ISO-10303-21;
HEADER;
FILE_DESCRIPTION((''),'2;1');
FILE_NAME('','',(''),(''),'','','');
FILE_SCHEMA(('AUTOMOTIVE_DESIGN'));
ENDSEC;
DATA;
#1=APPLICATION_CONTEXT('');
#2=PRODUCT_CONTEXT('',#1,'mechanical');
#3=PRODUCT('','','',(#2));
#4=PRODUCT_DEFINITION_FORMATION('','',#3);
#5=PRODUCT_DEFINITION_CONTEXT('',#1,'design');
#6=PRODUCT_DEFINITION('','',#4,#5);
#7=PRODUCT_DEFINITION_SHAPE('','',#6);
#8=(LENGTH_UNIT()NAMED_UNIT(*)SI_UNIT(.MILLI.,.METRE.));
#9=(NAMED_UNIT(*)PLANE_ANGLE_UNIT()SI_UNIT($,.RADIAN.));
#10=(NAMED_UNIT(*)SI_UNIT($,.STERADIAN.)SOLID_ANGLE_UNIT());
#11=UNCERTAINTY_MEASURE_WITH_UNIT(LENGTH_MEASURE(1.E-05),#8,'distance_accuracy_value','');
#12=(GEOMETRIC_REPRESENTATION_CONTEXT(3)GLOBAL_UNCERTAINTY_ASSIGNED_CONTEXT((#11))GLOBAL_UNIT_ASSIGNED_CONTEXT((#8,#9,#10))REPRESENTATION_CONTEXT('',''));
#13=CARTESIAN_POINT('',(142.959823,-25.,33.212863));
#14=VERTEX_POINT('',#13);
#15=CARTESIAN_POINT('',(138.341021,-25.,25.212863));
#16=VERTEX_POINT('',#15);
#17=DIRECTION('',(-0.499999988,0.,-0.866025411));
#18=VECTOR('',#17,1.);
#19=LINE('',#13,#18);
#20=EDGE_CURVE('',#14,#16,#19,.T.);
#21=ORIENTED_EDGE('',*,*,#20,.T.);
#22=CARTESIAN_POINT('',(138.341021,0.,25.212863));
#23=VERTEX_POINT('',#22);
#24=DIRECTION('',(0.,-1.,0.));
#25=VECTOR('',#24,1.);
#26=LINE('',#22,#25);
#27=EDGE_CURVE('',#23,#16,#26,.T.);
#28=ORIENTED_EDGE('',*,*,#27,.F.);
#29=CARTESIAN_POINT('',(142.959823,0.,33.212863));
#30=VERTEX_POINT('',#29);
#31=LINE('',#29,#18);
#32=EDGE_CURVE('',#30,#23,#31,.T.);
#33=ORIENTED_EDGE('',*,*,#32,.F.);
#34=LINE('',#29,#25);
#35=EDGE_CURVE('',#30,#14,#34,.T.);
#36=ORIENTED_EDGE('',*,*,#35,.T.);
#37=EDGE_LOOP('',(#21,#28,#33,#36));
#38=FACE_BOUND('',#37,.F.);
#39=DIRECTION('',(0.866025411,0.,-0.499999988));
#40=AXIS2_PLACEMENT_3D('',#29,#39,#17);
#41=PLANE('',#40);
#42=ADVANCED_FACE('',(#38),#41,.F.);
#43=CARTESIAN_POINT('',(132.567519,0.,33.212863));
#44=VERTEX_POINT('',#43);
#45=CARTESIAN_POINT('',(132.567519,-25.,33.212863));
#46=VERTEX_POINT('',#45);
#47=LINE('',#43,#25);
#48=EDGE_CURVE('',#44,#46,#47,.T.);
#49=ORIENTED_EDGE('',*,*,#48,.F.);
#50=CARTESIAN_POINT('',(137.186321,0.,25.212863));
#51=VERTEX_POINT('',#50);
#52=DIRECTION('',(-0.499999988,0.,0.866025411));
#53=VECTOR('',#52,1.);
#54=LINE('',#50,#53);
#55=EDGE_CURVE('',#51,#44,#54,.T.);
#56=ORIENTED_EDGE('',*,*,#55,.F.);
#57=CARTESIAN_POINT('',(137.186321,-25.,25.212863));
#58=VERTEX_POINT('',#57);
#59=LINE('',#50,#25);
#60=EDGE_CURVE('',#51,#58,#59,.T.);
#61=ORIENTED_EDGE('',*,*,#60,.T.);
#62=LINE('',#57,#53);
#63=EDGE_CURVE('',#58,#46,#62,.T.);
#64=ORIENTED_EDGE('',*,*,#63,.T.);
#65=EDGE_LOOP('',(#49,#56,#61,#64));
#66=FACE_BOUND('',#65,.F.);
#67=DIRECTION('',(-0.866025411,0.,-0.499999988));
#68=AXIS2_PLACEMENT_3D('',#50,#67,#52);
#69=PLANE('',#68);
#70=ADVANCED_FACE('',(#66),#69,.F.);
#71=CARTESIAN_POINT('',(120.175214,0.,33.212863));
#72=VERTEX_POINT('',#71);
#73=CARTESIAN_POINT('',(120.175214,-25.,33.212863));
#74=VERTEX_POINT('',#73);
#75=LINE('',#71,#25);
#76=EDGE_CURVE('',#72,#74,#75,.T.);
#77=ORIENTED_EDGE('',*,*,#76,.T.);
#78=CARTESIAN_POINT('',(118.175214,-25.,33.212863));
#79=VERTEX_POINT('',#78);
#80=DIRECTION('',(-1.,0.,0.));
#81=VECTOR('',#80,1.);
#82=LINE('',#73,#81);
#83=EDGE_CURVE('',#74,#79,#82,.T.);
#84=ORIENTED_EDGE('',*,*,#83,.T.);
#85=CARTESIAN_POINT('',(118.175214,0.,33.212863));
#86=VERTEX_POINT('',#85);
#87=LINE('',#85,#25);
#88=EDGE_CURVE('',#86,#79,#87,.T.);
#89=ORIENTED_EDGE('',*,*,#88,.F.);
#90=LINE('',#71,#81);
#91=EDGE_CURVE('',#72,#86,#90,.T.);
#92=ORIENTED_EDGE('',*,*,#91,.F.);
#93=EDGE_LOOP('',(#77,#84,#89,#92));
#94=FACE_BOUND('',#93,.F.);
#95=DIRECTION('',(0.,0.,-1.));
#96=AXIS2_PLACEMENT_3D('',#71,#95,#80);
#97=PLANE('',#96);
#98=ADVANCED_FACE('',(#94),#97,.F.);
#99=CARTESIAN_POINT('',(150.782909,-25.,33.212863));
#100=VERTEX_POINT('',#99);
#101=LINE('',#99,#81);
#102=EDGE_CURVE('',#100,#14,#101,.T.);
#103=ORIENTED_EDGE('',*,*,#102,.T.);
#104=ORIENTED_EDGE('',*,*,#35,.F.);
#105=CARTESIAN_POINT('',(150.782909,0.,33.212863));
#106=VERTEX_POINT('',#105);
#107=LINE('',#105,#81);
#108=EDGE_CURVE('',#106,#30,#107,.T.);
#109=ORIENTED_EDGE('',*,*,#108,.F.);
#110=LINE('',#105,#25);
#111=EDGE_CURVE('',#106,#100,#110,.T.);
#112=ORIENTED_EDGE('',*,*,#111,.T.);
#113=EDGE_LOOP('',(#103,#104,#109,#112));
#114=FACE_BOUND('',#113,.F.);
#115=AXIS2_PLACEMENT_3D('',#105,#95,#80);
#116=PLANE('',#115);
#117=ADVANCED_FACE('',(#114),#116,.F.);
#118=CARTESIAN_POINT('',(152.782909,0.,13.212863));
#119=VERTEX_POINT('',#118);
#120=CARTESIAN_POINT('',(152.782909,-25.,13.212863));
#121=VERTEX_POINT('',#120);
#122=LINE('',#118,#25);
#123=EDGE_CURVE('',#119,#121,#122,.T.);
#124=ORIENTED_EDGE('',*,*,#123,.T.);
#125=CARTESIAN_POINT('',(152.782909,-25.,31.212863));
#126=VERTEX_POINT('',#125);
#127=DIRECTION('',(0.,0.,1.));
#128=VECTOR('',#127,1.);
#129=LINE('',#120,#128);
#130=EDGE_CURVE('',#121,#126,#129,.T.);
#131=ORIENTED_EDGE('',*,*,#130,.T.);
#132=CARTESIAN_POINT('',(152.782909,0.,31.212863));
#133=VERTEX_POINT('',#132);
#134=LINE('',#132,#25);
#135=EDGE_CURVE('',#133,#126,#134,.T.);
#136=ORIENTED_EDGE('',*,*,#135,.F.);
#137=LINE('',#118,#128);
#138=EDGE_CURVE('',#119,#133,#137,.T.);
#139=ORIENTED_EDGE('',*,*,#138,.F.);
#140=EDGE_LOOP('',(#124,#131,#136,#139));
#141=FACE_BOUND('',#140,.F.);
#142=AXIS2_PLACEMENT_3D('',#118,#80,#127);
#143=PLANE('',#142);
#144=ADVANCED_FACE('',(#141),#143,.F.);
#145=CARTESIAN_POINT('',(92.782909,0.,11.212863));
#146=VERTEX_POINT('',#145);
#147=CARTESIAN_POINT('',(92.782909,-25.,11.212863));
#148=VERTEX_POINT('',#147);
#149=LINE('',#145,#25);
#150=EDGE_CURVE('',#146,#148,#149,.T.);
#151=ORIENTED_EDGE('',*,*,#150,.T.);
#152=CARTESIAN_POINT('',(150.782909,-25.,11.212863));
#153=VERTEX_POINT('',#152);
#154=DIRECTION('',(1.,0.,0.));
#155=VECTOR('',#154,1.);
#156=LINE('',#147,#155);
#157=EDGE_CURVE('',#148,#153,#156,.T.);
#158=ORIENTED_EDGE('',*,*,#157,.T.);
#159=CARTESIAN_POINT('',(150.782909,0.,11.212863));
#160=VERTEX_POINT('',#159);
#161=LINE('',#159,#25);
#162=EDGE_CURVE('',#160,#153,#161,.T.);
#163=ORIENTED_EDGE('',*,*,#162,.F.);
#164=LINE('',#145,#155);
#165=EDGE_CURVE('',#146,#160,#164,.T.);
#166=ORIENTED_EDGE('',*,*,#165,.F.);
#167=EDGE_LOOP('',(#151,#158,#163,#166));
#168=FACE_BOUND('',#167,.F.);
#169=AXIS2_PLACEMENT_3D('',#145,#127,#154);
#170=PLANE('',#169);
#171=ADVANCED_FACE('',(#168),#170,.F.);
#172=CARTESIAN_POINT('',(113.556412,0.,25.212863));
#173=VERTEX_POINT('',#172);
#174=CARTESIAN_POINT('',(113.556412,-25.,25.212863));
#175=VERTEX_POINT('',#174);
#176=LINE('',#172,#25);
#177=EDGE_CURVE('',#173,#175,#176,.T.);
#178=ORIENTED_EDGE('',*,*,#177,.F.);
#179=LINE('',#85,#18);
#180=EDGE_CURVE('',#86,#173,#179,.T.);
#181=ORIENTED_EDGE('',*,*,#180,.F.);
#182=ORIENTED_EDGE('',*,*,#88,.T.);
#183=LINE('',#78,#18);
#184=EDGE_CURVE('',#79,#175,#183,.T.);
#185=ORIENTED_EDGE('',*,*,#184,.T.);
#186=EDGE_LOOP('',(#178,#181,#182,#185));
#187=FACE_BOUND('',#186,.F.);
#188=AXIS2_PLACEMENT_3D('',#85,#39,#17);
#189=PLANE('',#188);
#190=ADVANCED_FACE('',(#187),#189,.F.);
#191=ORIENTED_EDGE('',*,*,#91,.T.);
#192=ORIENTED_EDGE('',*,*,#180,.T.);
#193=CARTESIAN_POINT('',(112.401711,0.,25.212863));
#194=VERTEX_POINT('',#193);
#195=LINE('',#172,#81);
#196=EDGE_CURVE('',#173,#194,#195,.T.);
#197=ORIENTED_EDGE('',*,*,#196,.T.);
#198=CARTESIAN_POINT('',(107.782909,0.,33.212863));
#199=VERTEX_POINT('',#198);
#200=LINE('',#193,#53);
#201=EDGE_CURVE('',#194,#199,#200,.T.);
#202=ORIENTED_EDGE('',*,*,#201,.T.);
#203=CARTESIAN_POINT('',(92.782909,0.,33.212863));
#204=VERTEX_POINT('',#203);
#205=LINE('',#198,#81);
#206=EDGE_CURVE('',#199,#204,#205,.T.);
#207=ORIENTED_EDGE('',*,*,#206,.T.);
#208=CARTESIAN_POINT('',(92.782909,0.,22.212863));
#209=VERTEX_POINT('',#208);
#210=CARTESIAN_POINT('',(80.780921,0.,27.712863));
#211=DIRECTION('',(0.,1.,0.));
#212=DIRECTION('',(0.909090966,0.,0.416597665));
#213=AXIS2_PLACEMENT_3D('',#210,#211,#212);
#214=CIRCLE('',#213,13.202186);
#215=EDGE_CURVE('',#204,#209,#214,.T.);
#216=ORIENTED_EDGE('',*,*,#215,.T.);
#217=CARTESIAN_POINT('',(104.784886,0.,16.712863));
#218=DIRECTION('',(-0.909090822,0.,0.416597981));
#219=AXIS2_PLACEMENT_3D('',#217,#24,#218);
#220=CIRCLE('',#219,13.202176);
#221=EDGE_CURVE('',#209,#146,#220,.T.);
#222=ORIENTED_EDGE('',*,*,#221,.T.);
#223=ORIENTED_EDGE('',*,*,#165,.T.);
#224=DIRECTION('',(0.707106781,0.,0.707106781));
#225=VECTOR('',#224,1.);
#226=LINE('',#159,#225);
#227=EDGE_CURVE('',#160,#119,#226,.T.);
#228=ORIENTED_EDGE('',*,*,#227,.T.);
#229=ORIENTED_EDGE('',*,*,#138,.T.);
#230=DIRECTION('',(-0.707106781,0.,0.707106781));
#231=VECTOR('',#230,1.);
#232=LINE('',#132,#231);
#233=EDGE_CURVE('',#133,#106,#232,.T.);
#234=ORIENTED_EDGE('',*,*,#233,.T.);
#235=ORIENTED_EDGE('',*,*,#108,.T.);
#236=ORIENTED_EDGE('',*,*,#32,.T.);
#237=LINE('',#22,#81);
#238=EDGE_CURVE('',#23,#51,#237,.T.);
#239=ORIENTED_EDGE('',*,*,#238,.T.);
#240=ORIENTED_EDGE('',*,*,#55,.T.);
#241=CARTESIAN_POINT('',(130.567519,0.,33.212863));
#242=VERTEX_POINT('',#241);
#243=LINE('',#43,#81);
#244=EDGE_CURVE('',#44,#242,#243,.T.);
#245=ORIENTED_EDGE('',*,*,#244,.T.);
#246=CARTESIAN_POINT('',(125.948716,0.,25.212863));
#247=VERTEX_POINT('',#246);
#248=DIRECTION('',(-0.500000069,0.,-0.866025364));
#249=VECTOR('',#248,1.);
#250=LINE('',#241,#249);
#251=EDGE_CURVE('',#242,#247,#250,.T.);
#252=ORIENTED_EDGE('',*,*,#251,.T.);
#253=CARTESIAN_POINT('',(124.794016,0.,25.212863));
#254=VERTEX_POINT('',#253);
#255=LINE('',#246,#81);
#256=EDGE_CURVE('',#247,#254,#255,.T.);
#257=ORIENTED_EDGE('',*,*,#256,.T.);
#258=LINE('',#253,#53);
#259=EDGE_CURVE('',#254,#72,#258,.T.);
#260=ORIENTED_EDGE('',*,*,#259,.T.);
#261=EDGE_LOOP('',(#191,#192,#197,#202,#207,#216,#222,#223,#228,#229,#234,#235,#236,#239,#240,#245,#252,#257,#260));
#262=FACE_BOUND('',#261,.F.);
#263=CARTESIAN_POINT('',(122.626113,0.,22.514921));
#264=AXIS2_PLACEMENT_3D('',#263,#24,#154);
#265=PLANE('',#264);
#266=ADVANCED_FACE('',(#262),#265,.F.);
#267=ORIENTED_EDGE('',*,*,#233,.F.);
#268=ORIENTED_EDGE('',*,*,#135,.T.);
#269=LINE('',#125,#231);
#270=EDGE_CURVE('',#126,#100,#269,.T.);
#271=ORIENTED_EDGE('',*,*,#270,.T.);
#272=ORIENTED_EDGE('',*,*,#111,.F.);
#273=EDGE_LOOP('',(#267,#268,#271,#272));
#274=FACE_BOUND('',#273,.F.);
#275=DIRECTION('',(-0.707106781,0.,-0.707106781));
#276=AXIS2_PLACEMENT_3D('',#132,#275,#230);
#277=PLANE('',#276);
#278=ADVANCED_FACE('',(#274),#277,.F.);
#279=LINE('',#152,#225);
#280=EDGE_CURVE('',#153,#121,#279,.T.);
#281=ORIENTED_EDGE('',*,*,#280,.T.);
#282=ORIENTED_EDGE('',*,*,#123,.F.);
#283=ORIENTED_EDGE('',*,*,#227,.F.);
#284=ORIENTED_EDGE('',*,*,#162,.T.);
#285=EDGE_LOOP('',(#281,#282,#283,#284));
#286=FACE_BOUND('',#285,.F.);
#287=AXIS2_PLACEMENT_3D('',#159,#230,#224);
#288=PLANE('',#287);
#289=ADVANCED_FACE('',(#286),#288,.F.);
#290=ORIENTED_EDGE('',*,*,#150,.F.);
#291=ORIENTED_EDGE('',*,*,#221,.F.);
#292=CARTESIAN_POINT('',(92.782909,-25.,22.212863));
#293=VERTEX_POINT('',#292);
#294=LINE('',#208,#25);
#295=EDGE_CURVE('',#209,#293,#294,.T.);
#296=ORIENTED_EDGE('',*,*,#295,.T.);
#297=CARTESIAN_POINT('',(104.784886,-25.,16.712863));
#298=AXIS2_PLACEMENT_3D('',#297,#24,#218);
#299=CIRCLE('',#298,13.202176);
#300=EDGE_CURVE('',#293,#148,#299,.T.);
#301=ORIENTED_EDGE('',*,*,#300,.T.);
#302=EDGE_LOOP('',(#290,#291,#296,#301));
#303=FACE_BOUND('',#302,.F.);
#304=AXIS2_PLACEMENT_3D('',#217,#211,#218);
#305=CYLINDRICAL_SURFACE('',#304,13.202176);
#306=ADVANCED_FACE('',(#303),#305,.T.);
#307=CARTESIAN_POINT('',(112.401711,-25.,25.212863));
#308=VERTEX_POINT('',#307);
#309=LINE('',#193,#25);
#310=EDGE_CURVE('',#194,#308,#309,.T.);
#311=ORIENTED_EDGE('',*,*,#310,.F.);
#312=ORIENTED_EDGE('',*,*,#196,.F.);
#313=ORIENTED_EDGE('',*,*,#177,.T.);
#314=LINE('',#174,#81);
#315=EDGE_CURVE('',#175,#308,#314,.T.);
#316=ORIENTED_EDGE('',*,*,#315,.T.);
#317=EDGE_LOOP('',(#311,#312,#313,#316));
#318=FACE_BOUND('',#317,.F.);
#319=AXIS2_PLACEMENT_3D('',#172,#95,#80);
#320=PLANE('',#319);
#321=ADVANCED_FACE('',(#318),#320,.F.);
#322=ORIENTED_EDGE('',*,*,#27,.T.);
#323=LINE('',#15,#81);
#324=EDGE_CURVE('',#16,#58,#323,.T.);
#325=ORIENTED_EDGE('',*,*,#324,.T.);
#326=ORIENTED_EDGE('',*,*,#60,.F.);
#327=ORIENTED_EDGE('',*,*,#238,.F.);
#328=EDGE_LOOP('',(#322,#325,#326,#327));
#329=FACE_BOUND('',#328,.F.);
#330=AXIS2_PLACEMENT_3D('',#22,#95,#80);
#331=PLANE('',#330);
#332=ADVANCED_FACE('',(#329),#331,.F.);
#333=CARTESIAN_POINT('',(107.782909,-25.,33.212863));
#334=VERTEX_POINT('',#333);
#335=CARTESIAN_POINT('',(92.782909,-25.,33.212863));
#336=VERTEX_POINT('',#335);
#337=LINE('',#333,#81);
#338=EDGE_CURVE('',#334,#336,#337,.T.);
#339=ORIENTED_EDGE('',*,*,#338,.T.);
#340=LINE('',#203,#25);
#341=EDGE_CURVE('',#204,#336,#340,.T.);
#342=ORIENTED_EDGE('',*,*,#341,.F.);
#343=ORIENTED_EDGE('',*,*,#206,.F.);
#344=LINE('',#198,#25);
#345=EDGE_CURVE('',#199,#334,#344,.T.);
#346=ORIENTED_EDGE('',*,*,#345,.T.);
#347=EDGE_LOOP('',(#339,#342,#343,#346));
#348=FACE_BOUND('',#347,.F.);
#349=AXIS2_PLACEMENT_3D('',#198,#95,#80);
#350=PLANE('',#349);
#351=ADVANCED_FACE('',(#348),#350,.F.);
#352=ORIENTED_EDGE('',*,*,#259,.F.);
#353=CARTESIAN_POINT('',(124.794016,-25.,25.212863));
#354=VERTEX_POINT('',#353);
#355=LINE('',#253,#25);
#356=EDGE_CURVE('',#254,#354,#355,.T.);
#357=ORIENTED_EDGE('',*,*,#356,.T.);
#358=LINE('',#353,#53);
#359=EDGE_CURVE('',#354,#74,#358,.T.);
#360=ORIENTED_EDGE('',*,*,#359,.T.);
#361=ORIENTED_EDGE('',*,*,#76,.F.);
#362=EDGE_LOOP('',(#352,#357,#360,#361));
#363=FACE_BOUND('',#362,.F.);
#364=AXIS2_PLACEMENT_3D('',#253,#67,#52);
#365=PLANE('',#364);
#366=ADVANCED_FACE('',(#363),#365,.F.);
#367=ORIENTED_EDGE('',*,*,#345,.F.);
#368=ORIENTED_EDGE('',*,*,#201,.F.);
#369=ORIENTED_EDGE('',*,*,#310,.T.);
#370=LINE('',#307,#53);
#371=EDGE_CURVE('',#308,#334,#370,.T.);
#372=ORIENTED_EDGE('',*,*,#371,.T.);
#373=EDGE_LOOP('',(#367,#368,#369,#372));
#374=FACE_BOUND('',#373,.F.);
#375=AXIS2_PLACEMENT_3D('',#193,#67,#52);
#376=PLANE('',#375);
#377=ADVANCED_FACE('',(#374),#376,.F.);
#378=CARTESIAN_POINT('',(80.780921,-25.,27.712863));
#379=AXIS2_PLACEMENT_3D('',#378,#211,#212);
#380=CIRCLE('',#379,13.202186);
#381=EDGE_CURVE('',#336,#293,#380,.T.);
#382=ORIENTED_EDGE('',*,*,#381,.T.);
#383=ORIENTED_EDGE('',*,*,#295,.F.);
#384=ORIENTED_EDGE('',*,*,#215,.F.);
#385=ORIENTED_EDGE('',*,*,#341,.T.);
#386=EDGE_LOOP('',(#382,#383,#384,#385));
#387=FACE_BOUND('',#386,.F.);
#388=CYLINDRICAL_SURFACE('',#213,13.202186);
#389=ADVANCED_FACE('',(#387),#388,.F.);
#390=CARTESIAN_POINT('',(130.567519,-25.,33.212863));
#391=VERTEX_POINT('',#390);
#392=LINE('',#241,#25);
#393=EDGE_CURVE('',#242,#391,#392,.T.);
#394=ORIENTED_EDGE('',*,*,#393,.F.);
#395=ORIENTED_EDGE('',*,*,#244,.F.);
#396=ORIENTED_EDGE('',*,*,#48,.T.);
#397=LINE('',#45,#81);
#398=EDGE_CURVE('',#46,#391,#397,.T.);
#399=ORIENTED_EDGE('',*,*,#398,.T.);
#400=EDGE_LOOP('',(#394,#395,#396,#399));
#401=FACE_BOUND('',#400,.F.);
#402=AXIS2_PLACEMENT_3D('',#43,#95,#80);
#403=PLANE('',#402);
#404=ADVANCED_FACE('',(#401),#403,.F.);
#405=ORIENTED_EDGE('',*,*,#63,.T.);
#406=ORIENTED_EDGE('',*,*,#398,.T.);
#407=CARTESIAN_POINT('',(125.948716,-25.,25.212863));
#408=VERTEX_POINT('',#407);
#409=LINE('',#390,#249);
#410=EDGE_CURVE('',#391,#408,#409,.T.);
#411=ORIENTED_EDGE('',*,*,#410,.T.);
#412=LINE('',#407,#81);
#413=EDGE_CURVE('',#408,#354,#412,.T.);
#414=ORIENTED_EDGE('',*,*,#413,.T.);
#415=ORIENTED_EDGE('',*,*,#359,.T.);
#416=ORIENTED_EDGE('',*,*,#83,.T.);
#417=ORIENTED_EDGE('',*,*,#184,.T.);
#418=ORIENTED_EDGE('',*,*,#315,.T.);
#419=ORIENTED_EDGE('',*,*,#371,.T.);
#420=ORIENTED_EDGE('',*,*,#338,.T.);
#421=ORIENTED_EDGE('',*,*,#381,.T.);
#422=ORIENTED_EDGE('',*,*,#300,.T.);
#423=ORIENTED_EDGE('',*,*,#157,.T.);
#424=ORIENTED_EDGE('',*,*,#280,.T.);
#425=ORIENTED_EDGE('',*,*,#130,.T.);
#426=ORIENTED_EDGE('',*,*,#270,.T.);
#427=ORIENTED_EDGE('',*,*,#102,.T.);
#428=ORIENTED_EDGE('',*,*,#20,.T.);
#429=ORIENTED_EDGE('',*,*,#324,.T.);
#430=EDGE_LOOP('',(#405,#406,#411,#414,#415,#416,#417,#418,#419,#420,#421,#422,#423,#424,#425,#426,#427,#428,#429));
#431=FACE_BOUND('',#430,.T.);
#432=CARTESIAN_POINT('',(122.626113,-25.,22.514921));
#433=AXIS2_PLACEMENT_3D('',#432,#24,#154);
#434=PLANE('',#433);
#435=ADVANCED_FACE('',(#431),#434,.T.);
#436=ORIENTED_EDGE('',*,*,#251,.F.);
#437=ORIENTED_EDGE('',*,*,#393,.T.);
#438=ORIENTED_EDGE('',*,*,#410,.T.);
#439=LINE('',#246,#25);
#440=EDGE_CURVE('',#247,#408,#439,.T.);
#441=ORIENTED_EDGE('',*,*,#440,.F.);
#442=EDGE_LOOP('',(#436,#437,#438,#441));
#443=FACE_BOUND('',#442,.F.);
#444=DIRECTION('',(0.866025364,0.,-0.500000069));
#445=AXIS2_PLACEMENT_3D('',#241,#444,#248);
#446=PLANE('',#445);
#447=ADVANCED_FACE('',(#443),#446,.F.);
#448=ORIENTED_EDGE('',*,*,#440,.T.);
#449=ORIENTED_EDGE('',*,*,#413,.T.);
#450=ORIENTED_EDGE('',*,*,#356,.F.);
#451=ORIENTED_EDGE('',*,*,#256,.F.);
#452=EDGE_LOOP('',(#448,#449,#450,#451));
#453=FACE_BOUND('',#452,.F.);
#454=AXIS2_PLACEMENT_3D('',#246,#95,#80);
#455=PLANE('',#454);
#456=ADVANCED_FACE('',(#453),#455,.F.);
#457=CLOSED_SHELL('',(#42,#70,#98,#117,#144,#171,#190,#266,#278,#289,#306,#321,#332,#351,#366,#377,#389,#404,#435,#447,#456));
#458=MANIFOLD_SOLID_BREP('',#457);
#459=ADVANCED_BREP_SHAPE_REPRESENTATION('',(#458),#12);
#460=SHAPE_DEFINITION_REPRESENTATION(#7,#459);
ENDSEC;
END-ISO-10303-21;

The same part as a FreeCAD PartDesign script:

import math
import FreeCAD as App
import Part
import Sketcher
from FreeCAD import Vector
Q = App.Units.Quantity

doc = App.newDocument("Part")
body = doc.addObject("PartDesign::Body", "Body")

# Sketch on XZ plane
sketch1 = doc.addObject("Sketcher::SketchObject", "Sketch")
body.addObject(sketch1)
sketch1.AttachmentSupport = (doc.XZ_Plane, [""])
sketch1.MapMode = "FlatFace"
sketch1.addGeometry([
    Part.LineSegment(Vector(112.4, 25.2, 0), Vector(107.8, 33.2, 0)),  # 0
    Part.LineSegment(Vector(107.8, 33.2, 0), Vector(92.8, 33.2, 0)),  # 1
    Part.ArcOfCircle(Part.Circle(Vector(80.8, 27.7, 0), Vector(0, 0, 1), 13.2), math.radians(-25), math.radians(25)),  # 2
    Part.ArcOfCircle(Part.Circle(Vector(104.8, 16.7, 0), Vector(0, 0, 1), 13.2), math.radians(155), math.radians(205)),  # 3
    Part.LineSegment(Vector(92.8, 11.2, 0), Vector(150.8, 11.2, 0)),  # 4
    Part.LineSegment(Vector(150.8, 11.2, 0), Vector(152.8, 13.2, 0)),  # 5
    Part.LineSegment(Vector(152.8, 13.2, 0), Vector(152.8, 31.2, 0)),  # 6
    Part.LineSegment(Vector(152.8, 31.2, 0), Vector(150.8, 33.2, 0)),  # 7
    Part.LineSegment(Vector(150.8, 33.2, 0), Vector(143, 33.2, 0)),  # 8
    Part.LineSegment(Vector(143, 33.2, 0), Vector(138.3, 25.2, 0)),  # 9
    Part.LineSegment(Vector(138.3, 25.2, 0), Vector(137.2, 25.2, 0)),  # 10
    Part.LineSegment(Vector(137.2, 25.2, 0), Vector(132.6, 33.2, 0)),  # 11
    Part.LineSegment(Vector(132.6, 33.2, 0), Vector(130.6, 33.2, 0)),  # 12
    Part.LineSegment(Vector(130.6, 33.2, 0), Vector(125.9, 25.2, 0)),  # 13
    Part.LineSegment(Vector(125.9, 25.2, 0), Vector(124.8, 25.2, 0)),  # 14
    Part.LineSegment(Vector(124.8, 25.2, 0), Vector(120.2, 33.2, 0)),  # 15
    Part.LineSegment(Vector(120.2, 33.2, 0), Vector(118.2, 33.2, 0)),  # 16
    Part.LineSegment(Vector(118.2, 33.2, 0), Vector(113.6, 25.2, 0)),  # 17
    Part.LineSegment(Vector(113.6, 25.2, 0), Vector(112.4, 25.2, 0)),  # 18
], False)
sketch1.addConstraint([
    Sketcher.Constraint("Coincident", 0, 2, 1, 1),
    Sketcher.Constraint("Coincident", 1, 2, 2, 2),
    Sketcher.Constraint("Tangent", 2, 1, 3, 1),
    Sketcher.Constraint("Coincident", 3, 2, 4, 1),
    Sketcher.Constraint("Coincident", 4, 2, 5, 1),
    Sketcher.Constraint("Coincident", 5, 2, 6, 1),
    Sketcher.Constraint("Coincident", 6, 2, 7, 1),
    Sketcher.Constraint("Coincident", 7, 2, 8, 1),
    Sketcher.Constraint("Coincident", 8, 2, 9, 1),
    Sketcher.Constraint("Coincident", 9, 2, 10, 1),
    Sketcher.Constraint("Coincident", 10, 2, 11, 1),
    Sketcher.Constraint("Coincident", 11, 2, 12, 1),
    Sketcher.Constraint("Coincident", 12, 2, 13, 1),
    Sketcher.Constraint("Coincident", 13, 2, 14, 1),
    Sketcher.Constraint("Coincident", 14, 2, 15, 1),
    Sketcher.Constraint("Coincident", 15, 2, 16, 1),
    Sketcher.Constraint("Coincident", 16, 2, 17, 1),
    Sketcher.Constraint("Coincident", 17, 2, 18, 1),
    Sketcher.Constraint("Coincident", 18, 2, 0, 1),
    Sketcher.Constraint("Horizontal", 1),
    Sketcher.Constraint("Horizontal", 4),
    Sketcher.Constraint("Vertical", 6),
    Sketcher.Constraint("Horizontal", 8),
    Sketcher.Constraint("Horizontal", 10),
    Sketcher.Constraint("Horizontal", 12),
    Sketcher.Constraint("Horizontal", 14),
    Sketcher.Constraint("Horizontal", 16),
    Sketcher.Constraint("Horizontal", 18),
    Sketcher.Constraint("Perpendicular", 5, 7),
    Sketcher.Constraint("Parallel", 0, 11),
    Sketcher.Constraint("Parallel", 9, 13),
    Sketcher.Constraint("Parallel", 11, 15),
    Sketcher.Constraint("Parallel", 13, 17),
    Sketcher.Constraint("Horizontal", 1, 2, 7, 2),
    Sketcher.Constraint("Horizontal", 8, 2, 11, 2),
    Sketcher.Constraint("Horizontal", 10, 2, 13, 2),
    Sketcher.Constraint("Horizontal", 12, 2, 15, 2),
    Sketcher.Constraint("Horizontal", 14, 2, 17, 2),
    Sketcher.Constraint("Vertical", 1, 2, 2, 1),
    Sketcher.Constraint("Vertical", 2, 1, 3, 2),
    Sketcher.Constraint("Vertical", 4, 2, 7, 2),
    Sketcher.Constraint("Equal", 10, 14),
    Sketcher.Constraint("Equal", 12, 16),
    Sketcher.Constraint("Equal", 14, 18),
    Sketcher.Constraint("Equal", 5, 7),
    Sketcher.Constraint("Equal", 0, 9),
    Sketcher.Constraint("DistanceX", 1, 2, 1, 1, 15.0),
    Sketcher.Constraint("DistanceX", 4, 1, 4, 2, 58.0),
    Sketcher.Constraint("DistanceX", 12, 2, 12, 1, 2.0),
    Sketcher.Constraint("DistanceY", 6, 1, 6, 2, 18.0),
    Sketcher.Constraint("Angle", 0, Q("119.999999 deg")),
    Sketcher.Constraint("DistanceY", 3, 3, 2, 3, 11.0),
    Sketcher.Constraint("DistanceY", 2, 1, 1, 2, 11.0),
    Sketcher.Constraint("DistanceY", 9, 2, 8, 2, 8.0),
    Sketcher.Constraint("DistanceX", 10, 2, 10, 1, 1.1547),
    Sketcher.Constraint("Radius", 2, 13.202186),
    Sketcher.Constraint("DistanceX", -1, 1, 2, 3, 80.780921),
    Sketcher.Constraint("DistanceY", -1, 1, 2, 3, 27.712863),
])
pad1 = doc.addObject("PartDesign::Pad", "Pad")
body.addObject(pad1)
pad1.Profile = sketch1
pad1.Length = 25

doc.recompute()
